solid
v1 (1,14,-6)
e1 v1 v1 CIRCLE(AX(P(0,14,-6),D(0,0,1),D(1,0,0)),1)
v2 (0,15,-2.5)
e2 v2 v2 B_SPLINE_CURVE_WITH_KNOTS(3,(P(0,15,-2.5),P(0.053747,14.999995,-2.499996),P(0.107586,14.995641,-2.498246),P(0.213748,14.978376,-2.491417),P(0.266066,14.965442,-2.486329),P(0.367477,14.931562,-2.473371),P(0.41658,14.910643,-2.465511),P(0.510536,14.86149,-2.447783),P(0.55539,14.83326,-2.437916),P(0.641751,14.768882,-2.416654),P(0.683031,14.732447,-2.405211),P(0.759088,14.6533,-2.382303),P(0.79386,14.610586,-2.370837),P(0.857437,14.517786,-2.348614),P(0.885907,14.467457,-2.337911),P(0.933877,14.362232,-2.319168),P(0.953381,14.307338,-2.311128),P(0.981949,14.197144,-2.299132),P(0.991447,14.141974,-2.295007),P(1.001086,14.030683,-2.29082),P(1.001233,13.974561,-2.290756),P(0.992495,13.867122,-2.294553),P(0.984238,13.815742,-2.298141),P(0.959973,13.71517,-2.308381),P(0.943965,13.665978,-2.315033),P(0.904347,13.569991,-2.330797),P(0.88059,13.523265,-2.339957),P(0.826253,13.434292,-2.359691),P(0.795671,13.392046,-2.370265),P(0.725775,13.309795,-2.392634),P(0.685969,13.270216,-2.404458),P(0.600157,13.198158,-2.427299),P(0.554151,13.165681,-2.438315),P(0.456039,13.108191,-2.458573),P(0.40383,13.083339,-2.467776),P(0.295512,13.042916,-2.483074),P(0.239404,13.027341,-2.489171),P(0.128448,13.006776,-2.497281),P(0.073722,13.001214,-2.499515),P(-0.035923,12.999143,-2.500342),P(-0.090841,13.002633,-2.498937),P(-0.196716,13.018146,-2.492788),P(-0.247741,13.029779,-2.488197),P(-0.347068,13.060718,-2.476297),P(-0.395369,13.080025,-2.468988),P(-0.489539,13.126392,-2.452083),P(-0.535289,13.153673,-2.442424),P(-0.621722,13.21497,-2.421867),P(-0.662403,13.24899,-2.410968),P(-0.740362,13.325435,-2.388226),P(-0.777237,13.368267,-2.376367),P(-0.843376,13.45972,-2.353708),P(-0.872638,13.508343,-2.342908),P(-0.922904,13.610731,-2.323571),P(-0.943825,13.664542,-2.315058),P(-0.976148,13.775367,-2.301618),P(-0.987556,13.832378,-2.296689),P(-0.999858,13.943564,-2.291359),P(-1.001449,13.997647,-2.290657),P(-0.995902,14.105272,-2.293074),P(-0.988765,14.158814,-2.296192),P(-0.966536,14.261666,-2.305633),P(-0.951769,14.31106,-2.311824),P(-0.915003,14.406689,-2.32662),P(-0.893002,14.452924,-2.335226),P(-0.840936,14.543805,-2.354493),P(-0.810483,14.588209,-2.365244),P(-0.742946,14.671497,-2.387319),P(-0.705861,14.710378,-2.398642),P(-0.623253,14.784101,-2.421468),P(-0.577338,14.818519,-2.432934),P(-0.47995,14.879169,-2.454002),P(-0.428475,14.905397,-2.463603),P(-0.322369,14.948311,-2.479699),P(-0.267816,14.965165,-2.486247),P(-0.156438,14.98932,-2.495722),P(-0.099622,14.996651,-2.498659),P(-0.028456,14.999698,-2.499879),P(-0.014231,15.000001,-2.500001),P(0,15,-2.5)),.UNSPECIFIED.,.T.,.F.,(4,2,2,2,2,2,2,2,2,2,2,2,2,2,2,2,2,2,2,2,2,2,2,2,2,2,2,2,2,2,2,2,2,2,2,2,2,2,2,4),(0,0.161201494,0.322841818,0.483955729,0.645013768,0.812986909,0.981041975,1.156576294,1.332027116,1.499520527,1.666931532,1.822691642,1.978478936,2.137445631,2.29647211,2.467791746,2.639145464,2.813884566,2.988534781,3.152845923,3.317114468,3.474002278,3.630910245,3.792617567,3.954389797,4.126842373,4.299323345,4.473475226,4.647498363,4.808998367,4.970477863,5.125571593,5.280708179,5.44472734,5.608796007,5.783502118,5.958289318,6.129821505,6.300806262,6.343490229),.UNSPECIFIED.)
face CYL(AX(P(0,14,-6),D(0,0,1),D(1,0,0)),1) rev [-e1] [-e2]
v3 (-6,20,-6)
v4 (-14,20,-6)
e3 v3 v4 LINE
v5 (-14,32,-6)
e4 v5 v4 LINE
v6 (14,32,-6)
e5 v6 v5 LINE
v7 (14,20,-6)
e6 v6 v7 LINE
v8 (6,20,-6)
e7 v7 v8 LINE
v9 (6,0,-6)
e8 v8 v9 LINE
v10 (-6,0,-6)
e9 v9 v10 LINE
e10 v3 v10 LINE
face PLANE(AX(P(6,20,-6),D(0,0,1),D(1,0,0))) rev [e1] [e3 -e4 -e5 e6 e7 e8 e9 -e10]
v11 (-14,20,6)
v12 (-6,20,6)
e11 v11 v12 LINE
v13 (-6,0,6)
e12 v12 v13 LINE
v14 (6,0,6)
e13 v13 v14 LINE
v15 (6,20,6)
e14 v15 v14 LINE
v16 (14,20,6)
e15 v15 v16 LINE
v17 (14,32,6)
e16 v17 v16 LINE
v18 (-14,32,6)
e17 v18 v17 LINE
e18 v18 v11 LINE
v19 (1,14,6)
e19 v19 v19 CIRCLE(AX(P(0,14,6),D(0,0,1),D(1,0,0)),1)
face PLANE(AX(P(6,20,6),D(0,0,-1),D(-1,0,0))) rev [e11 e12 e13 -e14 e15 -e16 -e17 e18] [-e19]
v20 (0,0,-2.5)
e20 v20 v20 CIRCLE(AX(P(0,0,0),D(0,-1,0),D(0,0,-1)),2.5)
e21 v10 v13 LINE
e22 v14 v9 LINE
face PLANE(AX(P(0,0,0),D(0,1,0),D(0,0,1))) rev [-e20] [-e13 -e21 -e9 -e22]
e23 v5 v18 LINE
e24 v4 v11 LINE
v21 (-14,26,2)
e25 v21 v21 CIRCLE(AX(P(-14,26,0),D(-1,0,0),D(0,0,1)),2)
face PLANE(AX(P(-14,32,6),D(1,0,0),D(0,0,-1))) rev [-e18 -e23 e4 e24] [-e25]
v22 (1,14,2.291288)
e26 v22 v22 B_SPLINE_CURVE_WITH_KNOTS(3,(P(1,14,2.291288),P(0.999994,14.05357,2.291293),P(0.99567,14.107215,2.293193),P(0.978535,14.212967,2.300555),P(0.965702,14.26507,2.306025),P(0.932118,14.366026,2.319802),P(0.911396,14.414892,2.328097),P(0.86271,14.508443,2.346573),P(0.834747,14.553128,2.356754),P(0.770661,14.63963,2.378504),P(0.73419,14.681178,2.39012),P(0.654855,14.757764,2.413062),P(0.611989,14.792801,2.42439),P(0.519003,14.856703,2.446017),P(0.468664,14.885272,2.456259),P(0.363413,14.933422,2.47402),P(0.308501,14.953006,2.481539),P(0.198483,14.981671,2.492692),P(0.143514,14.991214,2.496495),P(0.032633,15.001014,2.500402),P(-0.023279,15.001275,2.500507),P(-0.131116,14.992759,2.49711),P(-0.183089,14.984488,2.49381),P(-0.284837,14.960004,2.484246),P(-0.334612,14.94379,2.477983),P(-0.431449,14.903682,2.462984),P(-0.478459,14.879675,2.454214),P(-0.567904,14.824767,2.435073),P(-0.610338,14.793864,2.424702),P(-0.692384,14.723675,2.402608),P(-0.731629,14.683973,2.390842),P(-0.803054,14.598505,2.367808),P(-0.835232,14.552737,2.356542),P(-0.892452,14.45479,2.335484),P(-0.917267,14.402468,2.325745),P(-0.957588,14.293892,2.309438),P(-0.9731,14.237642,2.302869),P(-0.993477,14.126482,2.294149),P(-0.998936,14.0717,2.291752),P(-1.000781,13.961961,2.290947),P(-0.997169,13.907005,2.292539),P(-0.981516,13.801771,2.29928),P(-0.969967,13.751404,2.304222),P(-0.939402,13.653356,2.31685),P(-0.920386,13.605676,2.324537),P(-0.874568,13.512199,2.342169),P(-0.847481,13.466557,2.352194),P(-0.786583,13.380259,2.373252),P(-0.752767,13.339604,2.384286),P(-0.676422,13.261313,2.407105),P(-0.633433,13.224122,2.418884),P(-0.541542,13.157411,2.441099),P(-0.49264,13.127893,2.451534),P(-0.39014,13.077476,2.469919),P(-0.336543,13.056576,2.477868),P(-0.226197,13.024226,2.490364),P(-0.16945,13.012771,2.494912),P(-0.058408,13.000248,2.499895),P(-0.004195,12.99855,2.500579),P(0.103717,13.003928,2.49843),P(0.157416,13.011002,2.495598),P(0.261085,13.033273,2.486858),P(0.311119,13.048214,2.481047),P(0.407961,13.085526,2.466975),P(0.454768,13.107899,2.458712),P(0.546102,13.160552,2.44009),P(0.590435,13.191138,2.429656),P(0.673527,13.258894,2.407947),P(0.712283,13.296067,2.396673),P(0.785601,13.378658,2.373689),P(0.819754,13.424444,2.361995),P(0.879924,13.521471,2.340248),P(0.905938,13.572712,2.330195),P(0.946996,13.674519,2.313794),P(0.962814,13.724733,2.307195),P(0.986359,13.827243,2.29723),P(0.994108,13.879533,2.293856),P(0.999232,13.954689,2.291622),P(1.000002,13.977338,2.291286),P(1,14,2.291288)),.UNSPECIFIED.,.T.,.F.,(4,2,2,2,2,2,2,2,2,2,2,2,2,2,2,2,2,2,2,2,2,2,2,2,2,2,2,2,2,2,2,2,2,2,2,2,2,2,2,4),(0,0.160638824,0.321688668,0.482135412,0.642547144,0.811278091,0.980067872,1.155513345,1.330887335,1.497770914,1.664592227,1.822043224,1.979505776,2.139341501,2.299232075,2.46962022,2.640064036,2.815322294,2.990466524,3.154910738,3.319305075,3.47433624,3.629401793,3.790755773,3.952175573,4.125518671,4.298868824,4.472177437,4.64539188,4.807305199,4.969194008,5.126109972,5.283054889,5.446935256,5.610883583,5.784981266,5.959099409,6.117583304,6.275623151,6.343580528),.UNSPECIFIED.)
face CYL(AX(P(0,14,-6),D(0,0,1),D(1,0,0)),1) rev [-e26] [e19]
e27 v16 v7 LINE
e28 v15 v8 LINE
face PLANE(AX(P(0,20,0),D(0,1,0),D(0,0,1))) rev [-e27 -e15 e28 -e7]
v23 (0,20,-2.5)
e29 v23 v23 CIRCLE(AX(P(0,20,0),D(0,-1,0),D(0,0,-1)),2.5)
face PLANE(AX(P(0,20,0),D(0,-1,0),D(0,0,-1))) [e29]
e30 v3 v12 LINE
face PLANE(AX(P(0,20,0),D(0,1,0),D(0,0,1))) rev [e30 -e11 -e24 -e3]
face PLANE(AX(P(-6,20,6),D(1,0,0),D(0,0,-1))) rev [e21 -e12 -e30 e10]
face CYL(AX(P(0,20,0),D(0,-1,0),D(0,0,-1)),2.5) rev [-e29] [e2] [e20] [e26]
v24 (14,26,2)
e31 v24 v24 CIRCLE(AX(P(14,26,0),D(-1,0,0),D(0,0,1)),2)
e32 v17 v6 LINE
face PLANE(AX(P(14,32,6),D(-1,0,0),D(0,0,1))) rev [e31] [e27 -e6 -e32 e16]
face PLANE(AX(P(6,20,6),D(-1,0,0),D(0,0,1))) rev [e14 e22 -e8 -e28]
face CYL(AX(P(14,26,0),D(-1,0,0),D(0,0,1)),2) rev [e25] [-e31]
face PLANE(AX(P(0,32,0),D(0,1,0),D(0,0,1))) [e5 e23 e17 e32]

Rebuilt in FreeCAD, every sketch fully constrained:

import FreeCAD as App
import Part
import Sketcher
from FreeCAD import Vector

doc = App.newDocument("Part")
body = doc.addObject("PartDesign::Body", "Body")

sketch1 = doc.addObject("Sketcher::SketchObject", "Sketch")
body.addObject(sketch1)
sketch1.AttachmentSupport = (doc.XZ_Plane, [""])
sketch1.MapMode = "FlatFace"
sketch1.addGeometry([
    Part.LineSegment(Vector(-6, -6, 0), Vector(-6, 6, 0)),
    Part.LineSegment(Vector(-6, 6, 0), Vector(6, 6, 0)),
    Part.LineSegment(Vector(6, 6, 0), Vector(6, -6, 0)),
    Part.LineSegment(Vector(6, -6, 0), Vector(-6, -6, 0)),
], False)
sketch1.addConstraint([
    Sketcher.Constraint("Coincident", 0, 2, 1, 1),
    Sketcher.Constraint("Coincident", 1, 2, 2, 1),
    Sketcher.Constraint("Coincident", 2, 2, 3, 1),
    Sketcher.Constraint("Coincident", 3, 2, 0, 1),
    Sketcher.Constraint("Vertical", 0),
    Sketcher.Constraint("Horizontal", 1),
    Sketcher.Constraint("Vertical", 2),
    Sketcher.Constraint("Horizontal", 3),
    Sketcher.Constraint("Symmetric", 0, 2, 2, 2, -1, 1),
    Sketcher.Constraint("Equal", 3, 0),
    Sketcher.Constraint("DistanceX", 1, 1, 1, 2, 12.0),
])
pad1 = doc.addObject("PartDesign::Pad", "Pad")
body.addObject(pad1)
pad1.Profile = sketch1
pad1.Length = 20
pad1.Reversed = True

sketch2 = doc.addObject("Sketcher::SketchObject", "Sketch001")
body.addObject(sketch2)
sketch2.AttachmentSupport = (doc.XZ_Plane, [""])
sketch2.MapMode = "FlatFace"
sketch2.AttachmentOffset = App.Placement(Vector(0, 0, -20), App.Rotation())
sketch2.addGeometry([
    Part.LineSegment(Vector(-14, -6, 0), Vector(-14, 6, 0)),
    Part.LineSegment(Vector(-14, 6, 0), Vector(14, 6, 0)),
    Part.LineSegment(Vector(14, 6, 0), Vector(14, -6, 0)),
    Part.LineSegment(Vector(14, -6, 0), Vector(-14, -6, 0)),
], False)
sketch2.addConstraint([
    Sketcher.Constraint("Coincident", 0, 2, 1, 1),
    Sketcher.Constraint("Coincident", 1, 2, 2, 1),
    Sketcher.Constraint("Coincident", 2, 2, 3, 1),
    Sketcher.Constraint("Coincident", 3, 2, 0, 1),
    Sketcher.Constraint("Vertical", 0),
    Sketcher.Constraint("Horizontal", 1),
    Sketcher.Constraint("Vertical", 2),
    Sketcher.Constraint("Horizontal", 3),
    Sketcher.Constraint("Symmetric", 0, 2, 2, 2, -1, 1),
    Sketcher.Constraint("DistanceX", 1, 1, 1, 2, 28.0),
    Sketcher.Constraint("DistanceY", 0, 1, 0, 2, 12.0),
])
pad2 = doc.addObject("PartDesign::Pad", "Pad001")
body.addObject(pad2)
pad2.Profile = sketch2
pad2.Length = 12
pad2.Reversed = True

sketch3 = doc.addObject("Sketcher::SketchObject", "Sketch002")
body.addObject(sketch3)
sketch3.AttachmentSupport = (doc.XZ_Plane, [""])
sketch3.MapMode = "FlatFace"
sketch3.addGeometry(Part.Circle(Vector(0, 0, 0), Vector(0, 0, 1), 2.5), False)
sketch3.addConstraint([
    Sketcher.Constraint("Coincident", 0, 3, -1, 1),
    Sketcher.Constraint("Diameter", 0, 5.0),
])
pocket1 = doc.addObject("PartDesign::Pocket", "Pocket")
body.addObject(pocket1)
pocket1.Profile = sketch3
pocket1.Length = 20

sketch4 = doc.addObject("Sketcher::SketchObject", "Sketch003")
body.addObject(sketch4)
sketch4.AttachmentSupport = (doc.XY_Plane, [""])
sketch4.MapMode = "FlatFace"
sketch4.AttachmentOffset = App.Placement(Vector(0, 0, 6), App.Rotation())
sketch4.addGeometry(Part.Circle(Vector(0, 14, 0), Vector(0, 0, 1), 1), False)
sketch4.addConstraint([
    Sketcher.Constraint("PointOnObject", 0, 3, -2),
    Sketcher.Constraint("Diameter", 0, 2.0),
    Sketcher.Constraint("DistanceY", -1, 1, 0, 3, 14.0),
])
pocket2 = doc.addObject("PartDesign::Pocket", "Pocket001")
body.addObject(pocket2)
pocket2.Profile = sketch4
pocket2.Type = "ThroughAll"

sketch5 = doc.addObject("Sketcher::SketchObject", "Sketch004")
body.addObject(sketch5)
sketch5.AttachmentSupport = (doc.YZ_Plane, [""])
sketch5.MapMode = "FlatFace"
sketch5.AttachmentOffset = App.Placement(Vector(0, 0, -14), App.Rotation())
sketch5.addGeometry(Part.Circle(Vector(26, 0, 0), Vector(0, 0, 1), 2), False)
sketch5.addConstraint([
    Sketcher.Constraint("PointOnObject", 0, 3, -1),
    Sketcher.Constraint("Diameter", 0, 4.0),
    Sketcher.Constraint("DistanceX", -1, 1, 0, 3, 26.0),
])
pocket3 = doc.addObject("PartDesign::Pocket", "Pocket002")
body.addObject(pocket3)
pocket3.Profile = sketch5
pocket3.Type = "ThroughAll"
pocket3.Reversed = True

doc.recompute()
